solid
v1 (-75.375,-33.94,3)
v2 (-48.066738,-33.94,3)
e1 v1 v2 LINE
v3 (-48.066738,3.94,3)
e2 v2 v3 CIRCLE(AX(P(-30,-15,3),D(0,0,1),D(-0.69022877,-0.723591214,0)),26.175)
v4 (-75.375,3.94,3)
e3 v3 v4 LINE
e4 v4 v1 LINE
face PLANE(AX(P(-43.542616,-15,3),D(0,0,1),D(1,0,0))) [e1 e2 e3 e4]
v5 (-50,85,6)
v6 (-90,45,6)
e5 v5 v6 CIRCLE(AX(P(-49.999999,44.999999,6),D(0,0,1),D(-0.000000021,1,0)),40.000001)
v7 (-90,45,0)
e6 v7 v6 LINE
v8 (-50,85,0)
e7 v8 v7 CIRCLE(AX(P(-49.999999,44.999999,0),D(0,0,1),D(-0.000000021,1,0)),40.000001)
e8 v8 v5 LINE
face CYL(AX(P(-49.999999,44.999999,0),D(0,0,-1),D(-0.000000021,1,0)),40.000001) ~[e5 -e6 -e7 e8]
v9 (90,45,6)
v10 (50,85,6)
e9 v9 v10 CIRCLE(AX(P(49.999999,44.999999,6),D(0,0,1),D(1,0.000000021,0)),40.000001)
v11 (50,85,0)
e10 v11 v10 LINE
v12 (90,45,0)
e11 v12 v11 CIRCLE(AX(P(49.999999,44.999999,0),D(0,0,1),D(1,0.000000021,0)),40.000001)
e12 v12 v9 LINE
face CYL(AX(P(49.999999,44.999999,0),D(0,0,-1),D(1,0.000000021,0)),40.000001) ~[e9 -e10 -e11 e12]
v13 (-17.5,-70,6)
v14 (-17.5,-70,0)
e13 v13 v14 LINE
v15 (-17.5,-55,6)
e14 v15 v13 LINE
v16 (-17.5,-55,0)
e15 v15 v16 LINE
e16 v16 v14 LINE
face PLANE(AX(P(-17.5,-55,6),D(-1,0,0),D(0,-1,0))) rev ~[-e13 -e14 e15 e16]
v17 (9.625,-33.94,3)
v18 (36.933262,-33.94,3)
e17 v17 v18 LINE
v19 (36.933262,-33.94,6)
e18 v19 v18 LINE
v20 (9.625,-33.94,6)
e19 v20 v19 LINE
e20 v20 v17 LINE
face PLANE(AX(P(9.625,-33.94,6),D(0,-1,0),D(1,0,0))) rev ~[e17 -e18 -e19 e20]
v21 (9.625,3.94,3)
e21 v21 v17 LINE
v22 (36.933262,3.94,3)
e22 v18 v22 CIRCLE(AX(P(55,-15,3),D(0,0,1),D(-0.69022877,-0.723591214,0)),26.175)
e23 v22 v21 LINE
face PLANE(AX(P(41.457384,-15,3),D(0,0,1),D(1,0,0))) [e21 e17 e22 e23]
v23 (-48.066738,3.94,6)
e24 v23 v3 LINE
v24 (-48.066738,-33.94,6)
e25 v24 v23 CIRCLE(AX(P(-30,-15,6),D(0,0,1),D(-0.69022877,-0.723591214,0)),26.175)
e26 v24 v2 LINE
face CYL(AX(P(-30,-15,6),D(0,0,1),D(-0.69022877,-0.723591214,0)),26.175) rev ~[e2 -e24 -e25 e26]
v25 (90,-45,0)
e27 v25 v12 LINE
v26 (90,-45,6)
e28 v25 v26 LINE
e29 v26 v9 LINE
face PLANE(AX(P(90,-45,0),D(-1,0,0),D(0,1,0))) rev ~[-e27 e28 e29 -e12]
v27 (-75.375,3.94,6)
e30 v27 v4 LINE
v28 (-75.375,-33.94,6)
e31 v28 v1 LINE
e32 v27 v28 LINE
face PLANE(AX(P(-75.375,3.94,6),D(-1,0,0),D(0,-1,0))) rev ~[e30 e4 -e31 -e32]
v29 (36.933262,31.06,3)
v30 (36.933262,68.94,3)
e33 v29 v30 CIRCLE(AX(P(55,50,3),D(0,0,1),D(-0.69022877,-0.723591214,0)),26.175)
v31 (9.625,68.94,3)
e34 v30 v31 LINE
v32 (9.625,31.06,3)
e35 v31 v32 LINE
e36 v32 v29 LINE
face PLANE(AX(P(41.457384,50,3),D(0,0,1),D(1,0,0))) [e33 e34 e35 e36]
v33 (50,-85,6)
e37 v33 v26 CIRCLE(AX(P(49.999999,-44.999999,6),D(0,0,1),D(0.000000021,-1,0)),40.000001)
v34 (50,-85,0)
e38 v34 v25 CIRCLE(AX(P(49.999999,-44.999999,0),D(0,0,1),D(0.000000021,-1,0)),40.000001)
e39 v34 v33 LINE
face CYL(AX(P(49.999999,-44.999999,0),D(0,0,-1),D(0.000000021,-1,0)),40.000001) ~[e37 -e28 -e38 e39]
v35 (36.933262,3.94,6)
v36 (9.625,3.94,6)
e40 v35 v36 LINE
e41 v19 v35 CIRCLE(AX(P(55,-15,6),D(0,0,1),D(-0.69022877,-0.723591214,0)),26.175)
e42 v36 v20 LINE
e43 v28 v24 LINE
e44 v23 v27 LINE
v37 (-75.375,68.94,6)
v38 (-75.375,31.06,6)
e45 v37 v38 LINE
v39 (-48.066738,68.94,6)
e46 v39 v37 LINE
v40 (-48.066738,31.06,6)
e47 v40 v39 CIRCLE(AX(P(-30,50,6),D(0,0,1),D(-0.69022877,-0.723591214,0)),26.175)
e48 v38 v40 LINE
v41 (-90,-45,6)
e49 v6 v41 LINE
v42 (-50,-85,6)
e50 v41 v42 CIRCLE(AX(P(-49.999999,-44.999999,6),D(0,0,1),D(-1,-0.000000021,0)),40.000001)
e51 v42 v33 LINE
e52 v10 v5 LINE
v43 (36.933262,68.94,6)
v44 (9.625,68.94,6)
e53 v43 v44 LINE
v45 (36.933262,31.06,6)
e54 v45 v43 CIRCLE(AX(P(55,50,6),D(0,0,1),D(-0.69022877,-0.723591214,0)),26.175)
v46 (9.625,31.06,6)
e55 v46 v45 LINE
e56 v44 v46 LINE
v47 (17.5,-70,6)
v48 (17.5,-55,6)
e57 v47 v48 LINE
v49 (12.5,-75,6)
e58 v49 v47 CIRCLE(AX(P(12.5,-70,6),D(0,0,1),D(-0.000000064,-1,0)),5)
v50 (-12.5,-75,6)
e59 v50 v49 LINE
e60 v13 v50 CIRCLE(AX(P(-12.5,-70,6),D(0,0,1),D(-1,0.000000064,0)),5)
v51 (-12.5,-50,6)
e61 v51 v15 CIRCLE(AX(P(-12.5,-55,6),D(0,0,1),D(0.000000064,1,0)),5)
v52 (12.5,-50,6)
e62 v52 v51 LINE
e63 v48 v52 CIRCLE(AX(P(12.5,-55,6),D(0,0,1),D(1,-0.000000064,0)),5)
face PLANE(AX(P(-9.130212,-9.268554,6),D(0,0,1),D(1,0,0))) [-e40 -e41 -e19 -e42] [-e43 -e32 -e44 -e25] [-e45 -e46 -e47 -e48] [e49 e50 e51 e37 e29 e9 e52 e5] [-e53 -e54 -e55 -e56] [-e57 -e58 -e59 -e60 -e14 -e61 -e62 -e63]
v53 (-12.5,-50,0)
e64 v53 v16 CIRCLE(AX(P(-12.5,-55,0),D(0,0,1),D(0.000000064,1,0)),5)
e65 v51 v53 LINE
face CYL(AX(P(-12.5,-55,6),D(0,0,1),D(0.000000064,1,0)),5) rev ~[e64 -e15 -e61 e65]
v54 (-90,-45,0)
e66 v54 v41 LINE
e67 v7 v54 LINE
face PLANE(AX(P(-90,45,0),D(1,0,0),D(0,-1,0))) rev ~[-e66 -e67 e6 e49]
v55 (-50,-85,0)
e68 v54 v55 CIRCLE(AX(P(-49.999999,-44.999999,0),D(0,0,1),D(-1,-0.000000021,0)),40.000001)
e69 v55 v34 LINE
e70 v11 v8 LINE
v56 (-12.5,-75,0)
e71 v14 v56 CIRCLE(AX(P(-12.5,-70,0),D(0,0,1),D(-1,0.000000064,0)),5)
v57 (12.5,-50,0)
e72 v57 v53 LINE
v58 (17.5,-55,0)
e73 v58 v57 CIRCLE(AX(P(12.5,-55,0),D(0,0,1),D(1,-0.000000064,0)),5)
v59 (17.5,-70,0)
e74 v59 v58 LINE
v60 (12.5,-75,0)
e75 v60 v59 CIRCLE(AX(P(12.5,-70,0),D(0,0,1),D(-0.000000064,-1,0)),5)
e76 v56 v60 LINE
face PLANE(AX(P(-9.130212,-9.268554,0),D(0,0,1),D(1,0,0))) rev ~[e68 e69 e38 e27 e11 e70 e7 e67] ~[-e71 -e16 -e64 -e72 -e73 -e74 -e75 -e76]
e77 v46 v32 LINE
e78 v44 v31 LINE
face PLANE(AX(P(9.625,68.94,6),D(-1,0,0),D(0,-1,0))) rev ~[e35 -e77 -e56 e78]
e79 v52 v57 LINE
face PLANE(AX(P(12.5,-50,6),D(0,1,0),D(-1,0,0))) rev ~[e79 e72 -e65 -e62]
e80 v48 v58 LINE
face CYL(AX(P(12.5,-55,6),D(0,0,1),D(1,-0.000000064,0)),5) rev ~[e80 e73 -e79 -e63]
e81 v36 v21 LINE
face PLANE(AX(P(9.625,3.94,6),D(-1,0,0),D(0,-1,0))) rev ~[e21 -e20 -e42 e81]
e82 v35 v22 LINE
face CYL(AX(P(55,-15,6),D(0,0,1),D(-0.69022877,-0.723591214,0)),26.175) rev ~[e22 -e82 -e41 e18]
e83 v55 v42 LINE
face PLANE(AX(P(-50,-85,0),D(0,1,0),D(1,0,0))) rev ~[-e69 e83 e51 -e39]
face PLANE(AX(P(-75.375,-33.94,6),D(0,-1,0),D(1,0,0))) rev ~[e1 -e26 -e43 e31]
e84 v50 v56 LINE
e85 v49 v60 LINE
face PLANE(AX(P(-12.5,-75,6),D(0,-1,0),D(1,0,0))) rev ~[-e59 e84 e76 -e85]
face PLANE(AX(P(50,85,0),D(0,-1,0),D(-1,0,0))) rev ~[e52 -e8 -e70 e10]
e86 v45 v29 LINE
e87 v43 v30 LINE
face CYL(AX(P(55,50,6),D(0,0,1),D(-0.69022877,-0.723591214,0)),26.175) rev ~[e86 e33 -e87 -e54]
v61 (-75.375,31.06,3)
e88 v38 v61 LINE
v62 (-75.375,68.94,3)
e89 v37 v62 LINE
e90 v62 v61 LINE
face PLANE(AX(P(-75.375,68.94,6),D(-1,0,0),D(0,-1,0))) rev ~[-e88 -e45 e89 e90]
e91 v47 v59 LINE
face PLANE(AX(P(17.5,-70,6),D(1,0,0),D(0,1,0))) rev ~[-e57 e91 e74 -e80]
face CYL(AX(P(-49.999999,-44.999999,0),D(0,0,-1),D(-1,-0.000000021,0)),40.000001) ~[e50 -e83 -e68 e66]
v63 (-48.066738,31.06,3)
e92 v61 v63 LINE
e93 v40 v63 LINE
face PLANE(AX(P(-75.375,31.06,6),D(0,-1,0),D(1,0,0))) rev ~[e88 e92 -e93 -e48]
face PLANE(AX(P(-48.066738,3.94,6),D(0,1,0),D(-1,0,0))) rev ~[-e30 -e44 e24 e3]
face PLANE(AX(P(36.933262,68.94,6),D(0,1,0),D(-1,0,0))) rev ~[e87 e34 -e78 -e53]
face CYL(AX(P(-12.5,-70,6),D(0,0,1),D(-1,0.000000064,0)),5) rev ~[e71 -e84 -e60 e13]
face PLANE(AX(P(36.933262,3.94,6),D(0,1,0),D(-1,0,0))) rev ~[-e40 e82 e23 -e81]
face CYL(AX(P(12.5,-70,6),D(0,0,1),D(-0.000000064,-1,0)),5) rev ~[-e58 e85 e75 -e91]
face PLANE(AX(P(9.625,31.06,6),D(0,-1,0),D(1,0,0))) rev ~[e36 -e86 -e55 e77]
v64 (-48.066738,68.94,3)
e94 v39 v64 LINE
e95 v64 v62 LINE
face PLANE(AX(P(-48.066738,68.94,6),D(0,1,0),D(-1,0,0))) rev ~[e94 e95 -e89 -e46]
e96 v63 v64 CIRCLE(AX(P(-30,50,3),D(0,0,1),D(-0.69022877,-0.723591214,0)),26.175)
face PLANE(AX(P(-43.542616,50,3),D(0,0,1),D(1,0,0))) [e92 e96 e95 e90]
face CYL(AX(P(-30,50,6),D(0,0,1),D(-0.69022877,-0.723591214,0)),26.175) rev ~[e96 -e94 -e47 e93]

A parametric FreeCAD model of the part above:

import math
import FreeCAD as App
import Part
import Sketcher

V = App.Vector

doc = App.newDocument("Part")
body = doc.addObject("PartDesign::Body", "Body")

# Sketch on XY plane
sketch1 = body.newObject("Sketcher::SketchObject", "Sketch")
sketch1.AttachmentSupport = (doc.getObject("XY_Plane"), [""])
sketch1.MapMode = "FlatFace"
sketch1.addGeometry([
    Part.ArcOfCircle(Part.Circle(V(-50, 45, 0), V(0, 0, 1), 40), math.radians(90), math.radians(180)),  # 0
    Part.LineSegment(V(-90, 45, 0), V(-90, -45, 0)),  # 1
    Part.ArcOfCircle(Part.Circle(V(-50, -45, 0), V(0, 0, 1), 40), math.radians(-180), math.radians(-90)),  # 2
    Part.LineSegment(V(-50, -85, 0), V(50, -85, 0)),  # 3
    Part.ArcOfCircle(Part.Circle(V(50, -45, 0), V(0, 0, 1), 40), math.radians(-90), math.radians(0)),  # 4
    Part.LineSegment(V(90, -45, 0), V(90, 45, 0)),  # 5
    Part.ArcOfCircle(Part.Circle(V(50, 45, 0), V(0, 0, 1), 40), math.radians(0), math.radians(90)),  # 6
    Part.LineSegment(V(50, 85, 0), V(-50, 85, 0)),  # 7
], False)
sketch1.addConstraint([
    Sketcher.Constraint("Tangent", 0, 2, 1, 1),
    Sketcher.Constraint("Tangent", 1, 2, 2, 1),
    Sketcher.Constraint("Tangent", 2, 2, 3, 1),
    Sketcher.Constraint("Tangent", 3, 2, 4, 1),
    Sketcher.Constraint("Tangent", 4, 2, 5, 1),
    Sketcher.Constraint("Tangent", 5, 2, 6, 1),
    Sketcher.Constraint("Tangent", 6, 2, 7, 1),
    Sketcher.Constraint("Tangent", 7, 2, 0, 1),
    Sketcher.Constraint("Vertical", 1),
    Sketcher.Constraint("Horizontal", 3),
    Sketcher.Constraint("Vertical", 5),
    Sketcher.Constraint("Horizontal", 7),
    Sketcher.Constraint("Equal", 0, 2),
    Sketcher.Constraint("Equal", 2, 4),
    Sketcher.Constraint("Equal", 4, 6),
    Sketcher.Constraint("Symmetric", 0, 3, 4, 3, -1, 1),
    Sketcher.Constraint("Radius", 0, 40.000001),
    Sketcher.Constraint("DistanceX", 3, 1, 3, 2, 100.0),
    Sketcher.Constraint("DistanceY", 1, 2, 1, 1, 90.0),
])
pad1 = body.newObject("PartDesign::Pad", "Pad")
pad1.Profile = sketch1
pad1.Length = 6

# Sketch on XY plane
sketch2 = body.newObject("Sketcher::SketchObject", "Sketch001")
sketch2.AttachmentSupport = (doc.getObject("XY_Plane"), [""])
sketch2.MapMode = "FlatFace"
sketch2.AttachmentOffset = App.Placement(V(0, 0, 6), App.Rotation())
sketch2.addGeometry([
    Part.LineSegment(V(-75, 31, 0), V(-48, 31, 0)),  # 0
    Part.ArcOfCircle(Part.Circle(V(-30, 50, 0), V(0, 0, 1), 26), math.radians(-134), math.radians(134)),  # 1
    Part.LineSegment(V(-48, 69, 0), V(-75, 69, 0)),  # 2
    Part.LineSegment(V(-75, 69, 0), V(-75, 31, 0)),  # 3
    Part.LineSegment(V(10, 31, 0), V(37, 31, 0)),  # 4
    Part.ArcOfCircle(Part.Circle(V(55, 50, 0), V(0, 0, 1), 26), math.radians(-134), math.radians(134)),  # 5
    Part.LineSegment(V(37, 69, 0), V(10, 69, 0)),  # 6
    Part.LineSegment(V(10, 69, 0), V(10, 31, 0)),  # 7
    Part.LineSegment(V(10, -34, 0), V(37, -34, 0)),  # 8
    Part.ArcOfCircle(Part.Circle(V(55, -15, 0), V(0, 0, 1), 26), math.radians(-134), math.radians(134)),  # 9
    Part.LineSegment(V(37, 4, 0), V(10, 4, 0)),  # 10
    Part.LineSegment(V(10, 4, 0), V(10, -34, 0)),  # 11
    Part.LineSegment(V(-75, -34, 0), V(-48, -34, 0)),  # 12
    Part.ArcOfCircle(Part.Circle(V(-30, -15, 0), V(0, 0, 1), 26), math.radians(-134), math.radians(134)),  # 13
    Part.LineSegment(V(-48, 4, 0), V(-75, 4, 0)),  # 14
    Part.LineSegment(V(-75, 4, 0), V(-75, -34, 0)),  # 15
], False)
sketch2.addConstraint([
    Sketcher.Constraint("Coincident", 0, 2, 1, 1),
    Sketcher.Constraint("Coincident", 1, 2, 2, 1),
    Sketcher.Constraint("Coincident", 2, 2, 3, 1),
    Sketcher.Constraint("Coincident", 3, 2, 0, 1),
    Sketcher.Constraint("Coincident", 4, 2, 5, 1),
    Sketcher.Constraint("Coincident", 5, 2, 6, 1),
    Sketcher.Constraint("Coincident", 6, 2, 7, 1),
    Sketcher.Constraint("Coincident", 7, 2, 4, 1),
    Sketcher.Constraint("Coincident", 8, 2, 9, 1),
    Sketcher.Constraint("Coincident", 9, 2, 10, 1),
    Sketcher.Constraint("Coincident", 10, 2, 11, 1),
    Sketcher.Constraint("Coincident", 11, 2, 8, 1),
    Sketcher.Constraint("Coincident", 12, 2, 13, 1),
    Sketcher.Constraint("Coincident", 13, 2, 14, 1),
    Sketcher.Constraint("Coincident", 14, 2, 15, 1),
    Sketcher.Constraint("Coincident", 15, 2, 12, 1),
    Sketcher.Constraint("Horizontal", 0),
    Sketcher.Constraint("Horizontal", 2),
    Sketcher.Constraint("Vertical", 3),
    Sketcher.Constraint("Horizontal", 4),
    Sketcher.Constraint("Horizontal", 6),
    Sketcher.Constraint("Vertical", 7),
    Sketcher.Constraint("Horizontal", 8),
    Sketcher.Constraint("Horizontal", 10),
    Sketcher.Constraint("Vertical", 11),
    Sketcher.Constraint("Horizontal", 12),
    Sketcher.Constraint("Horizontal", 14),
    Sketcher.Constraint("Vertical", 15),
    Sketcher.Constraint("Equal", 1, 5),
    Sketcher.Constraint("Equal", 5, 9),
    Sketcher.Constraint("Equal", 9, 13),
    Sketcher.Constraint("Horizontal", 1, 3, 5, 3),
    Sketcher.Constraint("Horizontal", 9, 3, 13, 3),
    Sketcher.Constraint("Horizontal", 3, 2, 4, 2),
    Sketcher.Constraint("Horizontal", 2, 2, 5, 2),
    Sketcher.Constraint("Horizontal", 11, 2, 12, 2),
    Sketcher.Constraint("Horizontal", 10, 2, 13, 2),
    Sketcher.Constraint("Vertical", 5, 3, 9, 3),
    Sketcher.Constraint("Vertical", 1, 3, 13, 3),
    Sketcher.Constraint("Vertical", 0, 2, 1, 2),
    Sketcher.Constraint("Vertical", 5, 2, 8, 2),
    Sketcher.Constraint("Vertical", 8, 2, 9, 2),
    Sketcher.Constraint("Vertical", 7, 2, 10, 2),
    Sketcher.Constraint("Vertical", 3, 2, 14, 2),
    Sketcher.Constraint("Equal", 2, 4),
    Sketcher.Constraint("DistanceX", 1, 3, -1, 1, 30.0),
    Sketcher.Constraint("DistanceY", -1, 1, 1, 3, 50.0),
    Sketcher.Constraint("DistanceX", -1, 1, 5, 3, 55.0),
    Sketcher.Constraint("DistanceY", 9, 3, -1, 1, 15.0),
    Sketcher.Constraint("Radius", 1, 26.175),
    Sketcher.Constraint("DistanceY", 3, 2, 3, 1, 37.88),
    Sketcher.Constraint("DistanceX", 2, 2, -1, 1, 75.375),
])
pocket1 = body.newObject("PartDesign::Pocket", "Pocket")
pocket1.Profile = sketch2
pocket1.Length = 3

# Sketch on XY plane
sketch3 = body.newObject("Sketcher::SketchObject", "Sketch002")
sketch3.AttachmentSupport = (doc.getObject("XY_Plane"), [""])
sketch3.MapMode = "FlatFace"
sketch3.AttachmentOffset = App.Placement(V(0, 0, 6), App.Rotation())
sketch3.addGeometry([
    Part.ArcOfCircle(Part.Circle(V(12.5, -55, 0), V(0, 0, 1), 5), math.radians(0), math.radians(90)),  # 0
    Part.LineSegment(V(12.5, -50, 0), V(-12.5, -50, 0)),  # 1
    Part.ArcOfCircle(Part.Circle(V(-12.5, -55, 0), V(0, 0, 1), 5), math.radians(90), math.radians(180)),  # 2
    Part.LineSegment(V(-17.5, -55, 0), V(-17.5, -70, 0)),  # 3
    Part.ArcOfCircle(Part.Circle(V(-12.5, -70, 0), V(0, 0, 1), 5), math.radians(180), math.radians(270)),  # 4
    Part.LineSegment(V(-12.5, -75, 0), V(12.5, -75, 0)),  # 5
    Part.ArcOfCircle(Part.Circle(V(12.5, -70, 0), V(0, 0, 1), 5), math.radians(-90), math.radians(0)),  # 6
    Part.LineSegment(V(17.5, -70, 0), V(17.5, -55, 0)),  # 7
], False)
sketch3.addConstraint([
    Sketcher.Constraint("Tangent", 0, 2, 1, 1),
    Sketcher.Constraint("Tangent", 1, 2, 2, 1),
    Sketcher.Constraint("Tangent", 2, 2, 3, 1),
    Sketcher.Constraint("Tangent", 3, 2, 4, 1),
    Sketcher.Constraint("Tangent", 4, 2, 5, 1),
    Sketcher.Constraint("Tangent", 5, 2, 6, 1),
    Sketcher.Constraint("Tangent", 6, 2, 7, 1),
    Sketcher.Constraint("Tangent", 7, 2, 0, 1),
    Sketcher.Constraint("Horizontal", 1),
    Sketcher.Constraint("Vertical", 3),
    Sketcher.Constraint("Horizontal", 5),
    Sketcher.Constraint("Vertical", 7),
    Sketcher.Constraint("Equal", 0, 2),
    Sketcher.Constraint("Equal", 2, 4),
    Sketcher.Constraint("Equal", 4, 6),
    Sketcher.Constraint("Radius", 0, 5.0),
    Sketcher.Constraint("DistanceX", 1, 2, 1, 1, 25.0),
    Sketcher.Constraint("DistanceY", 3, 2, 3, 1, 15.0),
    Sketcher.Constraint("DistanceY", 0, 3, -1, 1, 55.0),
    Sketcher.Constraint("DistanceX", -1, 1, 0, 3, 12.5),
])
pocket2 = body.newObject("PartDesign::Pocket", "Pocket001")
pocket2.Profile = sketch3
pocket2.Length = 25

doc.recompute()
